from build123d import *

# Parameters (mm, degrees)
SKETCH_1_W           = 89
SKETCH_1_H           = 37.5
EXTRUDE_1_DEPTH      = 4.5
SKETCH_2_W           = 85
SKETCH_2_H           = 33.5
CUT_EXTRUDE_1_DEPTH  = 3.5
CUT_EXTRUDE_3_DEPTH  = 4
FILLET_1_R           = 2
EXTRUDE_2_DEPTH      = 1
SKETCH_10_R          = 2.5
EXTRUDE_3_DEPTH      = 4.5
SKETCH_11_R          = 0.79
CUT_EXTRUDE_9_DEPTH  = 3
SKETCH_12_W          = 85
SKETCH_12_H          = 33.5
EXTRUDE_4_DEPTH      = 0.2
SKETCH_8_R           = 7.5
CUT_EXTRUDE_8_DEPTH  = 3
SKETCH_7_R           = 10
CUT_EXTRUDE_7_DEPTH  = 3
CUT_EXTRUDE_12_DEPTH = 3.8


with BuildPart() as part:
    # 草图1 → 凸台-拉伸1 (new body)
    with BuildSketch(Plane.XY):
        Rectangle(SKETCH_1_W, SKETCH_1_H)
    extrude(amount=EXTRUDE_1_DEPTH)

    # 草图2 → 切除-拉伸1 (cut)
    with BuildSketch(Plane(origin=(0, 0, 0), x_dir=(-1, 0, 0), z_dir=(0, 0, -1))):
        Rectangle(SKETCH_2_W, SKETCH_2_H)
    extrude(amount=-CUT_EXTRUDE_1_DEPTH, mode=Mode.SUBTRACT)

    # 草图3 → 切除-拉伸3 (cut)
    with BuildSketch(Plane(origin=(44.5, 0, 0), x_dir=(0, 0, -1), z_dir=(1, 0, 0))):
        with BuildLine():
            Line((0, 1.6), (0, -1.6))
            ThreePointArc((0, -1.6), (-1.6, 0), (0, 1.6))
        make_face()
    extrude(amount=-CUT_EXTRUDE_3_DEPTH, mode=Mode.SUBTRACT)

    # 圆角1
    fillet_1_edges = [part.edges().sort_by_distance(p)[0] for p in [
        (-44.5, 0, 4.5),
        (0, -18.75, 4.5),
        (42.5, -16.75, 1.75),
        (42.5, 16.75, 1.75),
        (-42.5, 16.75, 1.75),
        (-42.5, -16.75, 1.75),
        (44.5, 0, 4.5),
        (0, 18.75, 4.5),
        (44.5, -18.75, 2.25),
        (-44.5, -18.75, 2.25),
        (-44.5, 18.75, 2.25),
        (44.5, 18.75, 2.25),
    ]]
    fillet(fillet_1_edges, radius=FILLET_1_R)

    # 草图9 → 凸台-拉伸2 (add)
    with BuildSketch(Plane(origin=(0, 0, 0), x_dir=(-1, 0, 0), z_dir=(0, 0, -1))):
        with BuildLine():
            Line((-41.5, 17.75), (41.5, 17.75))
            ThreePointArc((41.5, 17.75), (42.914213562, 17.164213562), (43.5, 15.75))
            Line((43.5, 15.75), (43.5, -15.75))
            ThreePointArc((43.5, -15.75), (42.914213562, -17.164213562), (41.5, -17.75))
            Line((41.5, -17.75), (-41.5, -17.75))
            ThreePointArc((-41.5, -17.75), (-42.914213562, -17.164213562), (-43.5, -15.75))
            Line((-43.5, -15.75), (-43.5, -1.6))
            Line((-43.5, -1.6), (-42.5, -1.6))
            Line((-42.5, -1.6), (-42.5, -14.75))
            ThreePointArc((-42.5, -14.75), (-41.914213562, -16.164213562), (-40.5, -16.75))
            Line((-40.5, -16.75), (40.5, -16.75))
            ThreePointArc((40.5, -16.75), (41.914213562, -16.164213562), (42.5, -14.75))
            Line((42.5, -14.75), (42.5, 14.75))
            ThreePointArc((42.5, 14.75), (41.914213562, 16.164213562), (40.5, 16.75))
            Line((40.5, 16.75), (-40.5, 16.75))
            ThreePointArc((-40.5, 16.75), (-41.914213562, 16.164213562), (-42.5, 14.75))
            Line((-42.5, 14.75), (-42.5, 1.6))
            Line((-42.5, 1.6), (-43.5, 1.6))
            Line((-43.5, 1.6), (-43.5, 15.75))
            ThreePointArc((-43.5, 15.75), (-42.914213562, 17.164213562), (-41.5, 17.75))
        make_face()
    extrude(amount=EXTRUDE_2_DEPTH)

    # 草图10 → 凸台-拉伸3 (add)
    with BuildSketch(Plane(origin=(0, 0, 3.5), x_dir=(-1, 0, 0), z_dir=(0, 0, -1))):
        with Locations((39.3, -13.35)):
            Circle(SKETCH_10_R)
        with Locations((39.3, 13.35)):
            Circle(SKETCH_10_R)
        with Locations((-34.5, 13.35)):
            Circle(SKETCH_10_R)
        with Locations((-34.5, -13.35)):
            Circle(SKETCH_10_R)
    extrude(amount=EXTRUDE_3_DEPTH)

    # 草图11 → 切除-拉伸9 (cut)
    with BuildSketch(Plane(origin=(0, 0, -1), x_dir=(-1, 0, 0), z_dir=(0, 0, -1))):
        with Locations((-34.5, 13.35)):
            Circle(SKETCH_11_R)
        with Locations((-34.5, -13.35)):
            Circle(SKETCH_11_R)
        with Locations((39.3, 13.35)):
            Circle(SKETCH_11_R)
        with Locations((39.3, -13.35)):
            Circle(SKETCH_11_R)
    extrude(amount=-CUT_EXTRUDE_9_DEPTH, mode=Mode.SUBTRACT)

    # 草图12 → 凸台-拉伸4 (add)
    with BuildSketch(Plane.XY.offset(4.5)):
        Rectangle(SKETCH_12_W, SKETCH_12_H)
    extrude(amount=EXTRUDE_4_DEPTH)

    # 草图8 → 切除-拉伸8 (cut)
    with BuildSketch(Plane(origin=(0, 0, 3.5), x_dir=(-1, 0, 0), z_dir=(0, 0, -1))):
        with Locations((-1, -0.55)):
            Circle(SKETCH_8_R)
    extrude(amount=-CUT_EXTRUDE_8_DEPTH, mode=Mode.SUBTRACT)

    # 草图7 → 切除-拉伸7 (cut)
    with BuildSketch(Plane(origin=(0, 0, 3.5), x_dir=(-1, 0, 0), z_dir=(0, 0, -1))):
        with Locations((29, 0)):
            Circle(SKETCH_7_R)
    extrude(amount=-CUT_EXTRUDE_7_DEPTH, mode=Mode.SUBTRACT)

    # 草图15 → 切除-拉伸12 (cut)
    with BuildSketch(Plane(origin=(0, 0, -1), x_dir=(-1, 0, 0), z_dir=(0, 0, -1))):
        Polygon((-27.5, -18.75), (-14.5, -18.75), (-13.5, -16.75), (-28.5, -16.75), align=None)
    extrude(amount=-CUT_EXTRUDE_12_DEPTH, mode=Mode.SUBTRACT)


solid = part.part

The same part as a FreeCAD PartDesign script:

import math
import FreeCAD as App
import Part
import Sketcher
Q = App.Units.Quantity


def edges_at(feature, points):
    """Names of the edges that pass closest to the given points."""
    edges = feature.Shape.Edges
    near = lambda p: min(range(len(edges)), key=lambda i: edges[i].distToShape(Part.Vertex(*p))[0])
    return sorted({f"Edge{near(p) + 1}" for p in points})

doc = App.newDocument("Part")
body = doc.addObject("PartDesign::Body", "Body")

sketch1 = doc.addObject("Sketcher::SketchObject", "Sketch")
body.addObject(sketch1)
sketch1.AttachmentSupport = (doc.XY_Plane, [""])
sketch1.MapMode = "FlatFace"
sketch1.addGeometry([
    Part.LineSegment(App.Vector(-44, 19, 0), App.Vector(-44, -19, 0)),
    Part.LineSegment(App.Vector(-44, -19, 0), App.Vector(44, -19, 0)),
    Part.LineSegment(App.Vector(44, -19, 0), App.Vector(44, 19, 0)),
    Part.LineSegment(App.Vector(44, 19, 0), App.Vector(-44, 19, 0)),
], False)
sketch1.addConstraint([
    Sketcher.Constraint("Coincident", 0, 2, 1, 1),
    Sketcher.Constraint("Coincident", 1, 2, 2, 1),
    Sketcher.Constraint("Coincident", 2, 2, 3, 1),
    Sketcher.Constraint("Coincident", 3, 2, 0, 1),
    Sketcher.Constraint("Vertical", 0),
    Sketcher.Constraint("Horizontal", 1),
    Sketcher.Constraint("Vertical", 2),
    Sketcher.Constraint("Horizontal", 3),
    Sketcher.Constraint("Symmetric", 0, 2, 2, 2, -1, 1),
    Sketcher.Constraint("DistanceX", 1, 1, 1, 2, Q("89 mm")),
    Sketcher.Constraint("DistanceY", 0, 2, 0, 1, Q("37.5 mm")),
])
pad1 = doc.addObject("PartDesign::Pad", "Pad")
body.addObject(pad1)
pad1.Profile = sketch1
pad1.Length = 4.5

sketch2 = doc.addObject("Sketcher::SketchObject", "Sketch001")
body.addObject(sketch2)
sketch2.AttachmentSupport = (doc.XY_Plane, [""])
sketch2.MapMode = "FlatFace"
sketch2.addGeometry([
    Part.LineSegment(App.Vector(42, 17, 0), App.Vector(42, -17, 0)),
    Part.LineSegment(App.Vector(42, -17, 0), App.Vector(-42, -17, 0)),
    Part.LineSegment(App.Vector(-42, -17, 0), App.Vector(-42, 17, 0)),
    Part.LineSegment(App.Vector(-42, 17, 0), App.Vector(42, 17, 0)),
], False)
sketch2.addConstraint([
    Sketcher.Constraint("Coincident", 0, 2, 1, 1),
    Sketcher.Constraint("Coincident", 1, 2, 2, 1),
    Sketcher.Constraint("Coincident", 2, 2, 3, 1),
    Sketcher.Constraint("Coincident", 3, 2, 0, 1),
    Sketcher.Constraint("Vertical", 0),
    Sketcher.Constraint("Horizontal", 1),
    Sketcher.Constraint("Vertical", 2),
    Sketcher.Constraint("Horizontal", 3),
    Sketcher.Constraint("Symmetric", 0, 2, 2, 2, -1, 1),
    Sketcher.Constraint("DistanceX", 1, 2, 1, 1, Q("85 mm")),
    Sketcher.Constraint("DistanceY", 0, 2, 0, 1, Q("33.5 mm")),
])
pocket1 = doc.addObject("PartDesign::Pocket", "Pocket")
body.addObject(pocket1)
pocket1.Profile = sketch2
pocket1.Length = 3.5
pocket1.Reversed = True

sketch3 = doc.addObject("Sketcher::SketchObject", "Sketch002")
body.addObject(sketch3)
sketch3.AttachmentSupport = (doc.YZ_Plane, [""])
sketch3.MapMode = "FlatFace"
sketch3.AttachmentOffset = App.Placement(App.Vector(0, 0, 44.5), App.Rotation())
sketch3.addGeometry([
    Part.LineSegment(App.Vector(-1.6, 0, 0), App.Vector(1.6, 0, 0)),
    Part.ArcOfCircle(Part.Circle(App.Vector(0, 0, 0), App.Vector(0, 0, 1), 1.6), math.radians(0), math.radians(180)),
], False)
sketch3.addConstraint([
    Sketcher.Constraint("Coincident", 0, 1, 1, 2),
    Sketcher.Constraint("Coincident", 1, 1, 0, 2),
    Sketcher.Constraint("Horizontal", 0),
    Sketcher.Constraint("Coincident", 1, 3, -1, 1),
    Sketcher.Constraint("PointOnObject", 0, 1, -1),
    Sketcher.Constraint("Radius", 1, Q("1.6 mm")),
])
pocket2 = doc.addObject("PartDesign::Pocket", "Pocket001")
body.addObject(pocket2)
pocket2.Profile = sketch3
pocket2.Length = 4
doc.recompute()

fillet = doc.addObject("PartDesign::Fillet", "Fillet")
body.addObject(fillet)
fillet.Base = (pocket2, edges_at(pocket2, [
    (-44.5, 0, 4.5),
    (0, -18.75, 4.5),
    (42.5, -16.75, 1.75),
    (42.5, 16.75, 1.75),
    (-42.5, 16.75, 1.75),
    (-42.5, -16.75, 1.75),
    (44.5, 0, 4.5),
    (0, 18.75, 4.5),
    (44.5, -18.75, 2.25),
    (-44.5, -18.75, 2.25),
    (-44.5, 18.75, 2.25),
    (44.5, 18.75, 2.25),
]))
fillet.Radius = 2

sketch4 = doc.addObject("Sketcher::SketchObject", "Sketch003")
body.addObject(sketch4)
sketch4.AttachmentSupport = (doc.XY_Plane, [""])
sketch4.MapMode = "FlatFace"
sketch4.addGeometry([
    Part.LineSegment(App.Vector(-41.5, 17.8, 0), App.Vector(41.5, 17.8, 0)),
    Part.ArcOfCircle(Part.Circle(App.Vector(41.5, 15.7, 0), App.Vector(0, 0, 1), 2), math.radians(0), math.radians(90)),
    Part.LineSegment(App.Vector(43.5, 15.8, 0), App.Vector(43.5, 1.6, 0)),
    Part.LineSegment(App.Vector(43.5, 1.6, 0), App.Vector(42.5, 1.6, 0)),
    Part.LineSegment(App.Vector(42.5, 1.6, 0), App.Vector(42.5, 14.8, 0)),
    Part.ArcOfCircle(Part.Circle(App.Vector(40.5, 14.7, 0), App.Vector(0, 0, 1), 2), math.radians(0), math.radians(90)),
    Part.LineSegment(App.Vector(40.5, 16.8, 0), App.Vector(-40.5, 16.8, 0)),
    Part.ArcOfCircle(Part.Circle(App.Vector(-40.5, 14.7, 0), App.Vector(0, 0, 1), 2), math.radians(90), math.radians(180)),
    Part.LineSegment(App.Vector(-42.5, 14.8, 0), App.Vector(-42.5, -14.8, 0)),
    Part.ArcOfCircle(Part.Circle(App.Vector(-40.5, -14.7, 0), App.Vector(0, 0, 1), 2), math.radians(-180), math.radians(-90)),
    Part.LineSegment(App.Vector(-40.5, -16.8, 0), App.Vector(40.5, -16.8, 0)),
    Part.ArcOfCircle(Part.Circle(App.Vector(40.5, -14.7, 0), App.Vector(0, 0, 1), 2), math.radians(-90), math.radians(0)),
    Part.LineSegment(App.Vector(42.5, -14.8, 0), App.Vector(42.5, -1.6, 0)),
    Part.LineSegment(App.Vector(42.5, -1.6, 0), App.Vector(43.5, -1.6, 0)),
    Part.LineSegment(App.Vector(43.5, -1.6, 0), App.Vector(43.5, -15.8, 0)),
    Part.ArcOfCircle(Part.Circle(App.Vector(41.5, -15.7, 0), App.Vector(0, 0, 1), 2), math.radians(-90), math.radians(0)),
    Part.LineSegment(App.Vector(41.5, -17.8, 0), App.Vector(-41.5, -17.8, 0)),
    Part.ArcOfCircle(Part.Circle(App.Vector(-41.5, -15.7, 0), App.Vector(0, 0, 1), 2), math.radians(-180), math.radians(-90)),
    Part.LineSegment(App.Vector(-43.5, -15.8, 0), App.Vector(-43.5, 15.8, 0)),
    Part.ArcOfCircle(Part.Circle(App.Vector(-41.5, 15.7, 0), App.Vector(0, 0, 1), 2), math.radians(90), math.radians(180)),
], False)
sketch4.addConstraint([
    Sketcher.Constraint("Tangent", 0, 2, 1, 2),
    Sketcher.Constraint("Tangent", 1, 1, 2, 1),
    Sketcher.Constraint("Coincident", 2, 2, 3, 1),
    Sketcher.Constraint("Coincident", 3, 2, 4, 1),
    Sketcher.Constraint("Tangent", 4, 2, 5, 1),
    Sketcher.Constraint("Tangent", 5, 2, 6, 1),
    Sketcher.Constraint("Tangent", 6, 2, 7, 1),
    Sketcher.Constraint("Tangent", 7, 2, 8, 1),
    Sketcher.Constraint("Tangent", 8, 2, 9, 1),
    Sketcher.Constraint("Tangent", 9, 2, 10, 1),
    Sketcher.Constraint("Tangent", 10, 2, 11, 1),
    Sketcher.Constraint("Tangent", 11, 2, 12, 1),
    Sketcher.Constraint("Coincident", 12, 2, 13, 1),
    Sketcher.Constraint("Coincident", 13, 2, 14, 1),
    Sketcher.Constraint("Tangent", 14, 2, 15, 2),
    Sketcher.Constraint("Tangent", 15, 1, 16, 1),
    Sketcher.Constraint("Tangent", 16, 2, 17, 2),
    Sketcher.Constraint("Tangent", 17, 1, 18, 1),
    Sketcher.Constraint("Tangent", 18, 2, 19, 2),
    Sketcher.Constraint("Tangent", 19, 1, 0, 1),
    Sketcher.Constraint("Horizontal", 0),
    Sketcher.Constraint("Vertical", 2),
    Sketcher.Constraint("Horizontal", 3),
    Sketcher.Constraint("Vertical", 4),
    Sketcher.Constraint("Horizontal", 6),
    Sketcher.Constraint("Vertical", 8),
    Sketcher.Constraint("Horizontal", 10),
    Sketcher.Constraint("Vertical", 12),
    Sketcher.Constraint("Horizontal", 13),
    Sketcher.Constraint("Vertical", 14),
    Sketcher.Constraint("Horizontal", 16),
    Sketcher.Constraint("Vertical", 18),
    Sketcher.Constraint("Equal", 1, 5),
    Sketcher.Constraint("Equal", 5, 7),
    Sketcher.Constraint("Equal", 7, 9),
    Sketcher.Constraint("Equal", 9, 11),
    Sketcher.Constraint("Equal", 11, 15),
    Sketcher.Constraint("Equal", 15, 17),
    Sketcher.Constraint("Equal", 17, 19),
    Sketcher.Constraint("Symmetric", 5, 3, 9, 3, -1, 1),
    Sketcher.Constraint("Symmetric", 1, 3, 17, 3, -1, 1),
    Sketcher.Constraint("Symmetric", 3, 2, 12, 2, -1),
    Sketcher.Constraint("Vertical", 1, 3, 15, 3),
    Sketcher.Constraint("Radius", 1, Q("2 mm")),
    Sketcher.Constraint("DistanceX", 0, 1, 0, 2, Q("83 mm")),
    Sketcher.Constraint("DistanceX", 3, 2, 3, 1, Q("1 mm")),
    Sketcher.Constraint("DistanceY", 8, 2, 8, 1, Q("29.5 mm")),
    Sketcher.Constraint("DistanceY", 18, 1, 18, 2, Q("31.5 mm")),
    Sketcher.Constraint("DistanceY", 2, 2, 2, 1, Q("14.15 mm")),
])
pad2 = doc.addObject("PartDesign::Pad", "Pad001")
body.addObject(pad2)
pad2.Profile = sketch4
pad2.Length = 1
pad2.Reversed = True

sketch5 = doc.addObject("Sketcher::SketchObject", "Sketch004")
body.addObject(sketch5)
sketch5.AttachmentSupport = (doc.XY_Plane, [""])
sketch5.MapMode = "FlatFace"
sketch5.AttachmentOffset = App.Placement(App.Vector(0, 0, 3.5), App.Rotation())
sketch5.addGeometry([
    Part.Circle(App.Vector(-39.3, -13.3, 0), App.Vector(0, 0, 1), 2.5),
    Part.Circle(App.Vector(-39.3, 13.3, 0), App.Vector(0, 0, 1), 2.5),
    Part.Circle(App.Vector(34.5, 13.3, 0), App.Vector(0, 0, 1), 2.5),
    Part.Circle(App.Vector(34.5, -13.3, 0), App.Vector(0, 0, 1), 2.5),
], False)
sketch5.addConstraint([
    Sketcher.Constraint("Equal", 0, 1),
    Sketcher.Constraint("Equal", 1, 2),
    Sketcher.Constraint("Equal", 2, 3),
    Sketcher.Constraint("Symmetric", 0, 3, 1, 3, -1),
    Sketcher.Constraint("Symmetric", 2, 3, 3, 3, -1),
    Sketcher.Constraint("Horizontal", 1, 3, 2, 3),
    Sketcher.Constraint("Diameter", 0, Q("5 mm")),
    Sketcher.Constraint("DistanceX", 0, 3, -1, 1, Q("39.3 mm")),
    Sketcher.Constraint("DistanceX", -1, 1, 2, 3, Q("34.5 mm")),
    Sketcher.Constraint("DistanceY", 0, 3, 1, 3, Q("26.7 mm")),
])
pad3 = doc.addObject("PartDesign::Pad", "Pad002")
body.addObject(pad3)
pad3.Profile = sketch5
pad3.Length = 4.5
pad3.Reversed = True

sketch6 = doc.addObject("Sketcher::SketchObject", "Sketch005")
body.addObject(sketch6)
sketch6.AttachmentSupport = (doc.XY_Plane, [""])
sketch6.MapMode = "FlatFace"
sketch6.AttachmentOffset = App.Placement(App.Vector(0, 0, -1), App.Rotation())
sketch6.addGeometry([
    Part.Circle(App.Vector(34.5, 13.3, 0), App.Vector(0, 0, 1), 0.8),
    Part.Circle(App.Vector(34.5, -13.3, 0), App.Vector(0, 0, 1), 0.8),
    Part.Circle(App.Vector(-39.3, 13.3, 0), App.Vector(0, 0, 1), 0.8),
    Part.Circle(App.Vector(-39.3, -13.3, 0), App.Vector(0, 0, 1), 0.8),
], False)
sketch6.addConstraint([
    Sketcher.Constraint("Equal", 0, 1),
    Sketcher.Constraint("Equal", 1, 2),
    Sketcher.Constraint("Equal", 2, 3),
    Sketcher.Constraint("Symmetric", 0, 3, 1, 3, -1),
    Sketcher.Constraint("Symmetric", 2, 3, 3, 3, -1),
    Sketcher.Constraint("Horizontal", 0, 3, 2, 3),
    Sketcher.Constraint("Diameter", 0, Q("1.58 mm")),
    Sketcher.Constraint("DistanceX", -1, 1, 0, 3, Q("34.5 mm")),
    Sketcher.Constraint("DistanceX", 2, 3, -1, 1, Q("39.3 mm")),
    Sketcher.Constraint("DistanceY", 1, 3, 0, 3, Q("26.7 mm")),
])
pocket3 = doc.addObject("PartDesign::Pocket", "Pocket002")
body.addObject(pocket3)
pocket3.Profile = sketch6
pocket3.Length = 3
pocket3.Reversed = True

sketch7 = doc.addObject("Sketcher::SketchObject", "Sketch006")
body.addObject(sketch7)
sketch7.AttachmentSupport = (doc.XY_Plane, [""])
sketch7.MapMode = "FlatFace"
sketch7.AttachmentOffset = App.Placement(App.Vector(0, 0, 4.5), App.Rotation())
sketch7.addGeometry([
    Part.LineSegment(App.Vector(-42, 17, 0), App.Vector(-42, -17, 0)),
    Part.LineSegment(App.Vector(-42, -17, 0), App.Vector(42, -17, 0)),
    Part.LineSegment(App.Vector(42, -17, 0), App.Vector(42, 17, 0)),
    Part.LineSegment(App.Vector(42, 17, 0), App.Vector(-42, 17, 0)),
], False)
sketch7.addConstraint([
    Sketcher.Constraint("Coincident", 0, 2, 1, 1),
    Sketcher.Constraint("Coincident", 1, 2, 2, 1),
    Sketcher.Constraint("Coincident", 2, 2, 3, 1),
    Sketcher.Constraint("Coincident", 3, 2, 0, 1),
    Sketcher.Constraint("Vertical", 0),
    Sketcher.Constraint("Horizontal", 1),
    Sketcher.Constraint("Vertical", 2),
    Sketcher.Constraint("Horizontal", 3),
    Sketcher.Constraint("Symmetric", 0, 2, 2, 2, -1, 1),
    Sketcher.Constraint("DistanceX", 1, 1, 1, 2, Q("85 mm")),
    Sketcher.Constraint("DistanceY", 0, 2, 0, 1, Q("33.5 mm")),
])
pad4 = doc.addObject("PartDesign::Pad", "Pad003")
body.addObject(pad4)
pad4.Profile = sketch7
pad4.Length = 0.2

sketch8 = doc.addObject("Sketcher::SketchObject", "Sketch007")
body.addObject(sketch8)
sketch8.AttachmentSupport = (doc.XY_Plane, [""])
sketch8.MapMode = "FlatFace"
sketch8.AttachmentOffset = App.Placement(App.Vector(0, 0, 3.5), App.Rotation())
sketch8.addGeometry(Part.Circle(App.Vector(1, -1, 0), App.Vector(0, 0, 1), 8), False)
sketch8.addConstraint([
    Sketcher.Constraint("Diameter", 0, Q("15 mm")),
    Sketcher.Constraint("DistanceX", -1, 1, 0, 3, Q("1 mm")),
    Sketcher.Constraint("DistanceY", 0, 3, -1, 1, Q("0.55 mm")),
])
pocket4 = doc.addObject("PartDesign::Pocket", "Pocket003")
body.addObject(pocket4)
pocket4.Profile = sketch8
pocket4.Length = 3
pocket4.Reversed = True

sketch9 = doc.addObject("Sketcher::SketchObject", "Sketch008")
body.addObject(sketch9)
sketch9.AttachmentSupport = (doc.XY_Plane, [""])
sketch9.MapMode = "FlatFace"
sketch9.AttachmentOffset = App.Placement(App.Vector(0, 0, 3.5), App.Rotation())
sketch9.addGeometry(Part.Circle(App.Vector(-29, 0, 0), App.Vector(0, 0, 1), 10), False)
sketch9.addConstraint([
    Sketcher.Constraint("PointOnObject", 0, 3, -1),
    Sketcher.Constraint("Diameter", 0, Q("20 mm")),
    Sketcher.Constraint("DistanceX", 0, 3, -1, 1, Q("29 mm")),
])
pocket5 = doc.addObject("PartDesign::Pocket", "Pocket004")
body.addObject(pocket5)
pocket5.Profile = sketch9
pocket5.Length = 3
pocket5.Reversed = True

sketch10 = doc.addObject("Sketcher::SketchObject", "Sketch009")
body.addObject(sketch10)
sketch10.AttachmentSupport = (doc.XY_Plane, [""])
sketch10.MapMode = "FlatFace"
sketch10.AttachmentOffset = App.Placement(App.Vector(0, 0, -1), App.Rotation())
sketch10.addGeometry([
    Part.LineSegment(App.Vector(27.5, -18.8, 0), App.Vector(14.5, -18.8, 0)),
    Part.LineSegment(App.Vector(14.5, -18.8, 0), App.Vector(13.5, -16.8, 0)),
    Part.LineSegment(App.Vector(13.5, -16.8, 0), App.Vector(28.5, -16.8, 0)),
    Part.LineSegment(App.Vector(28.5, -16.8, 0), App.Vector(27.5, -18.8, 0)),
], False)
sketch10.addConstraint([
    Sketcher.Constraint("Coincident", 0, 2, 1, 1),
    Sketcher.Constraint("Coincident", 1, 2, 2, 1),
    Sketcher.Constraint("Coincident", 2, 2, 3, 1),
    Sketcher.Constraint("Coincident", 3, 2, 0, 1),
    Sketcher.Constraint("Horizontal", 0),
    Sketcher.Constraint("Horizontal", 2),
    Sketcher.Constraint("Equal", 1, 3),
    Sketcher.Constraint("DistanceX", 0, 2, 0, 1, Q("13 mm")),
    Sketcher.Constraint("DistanceX", 2, 1, 2, 2, Q("15 mm")),
    Sketcher.Constraint("DistanceY", 0, 2, 1, 2, Q("2 mm")),
    Sketcher.Constraint("DistanceX", -1, 1, 0, 2, Q("14.5 mm")),
    Sketcher.Constraint("DistanceY", 0, 2, -1, 1, Q("18.75 mm")),
])
pocket6 = doc.addObject("PartDesign::Pocket", "Pocket005")
body.addObject(pocket6)
pocket6.Profile = sketch10
pocket6.Length = 3.8
pocket6.Reversed = True

doc.recompute()
